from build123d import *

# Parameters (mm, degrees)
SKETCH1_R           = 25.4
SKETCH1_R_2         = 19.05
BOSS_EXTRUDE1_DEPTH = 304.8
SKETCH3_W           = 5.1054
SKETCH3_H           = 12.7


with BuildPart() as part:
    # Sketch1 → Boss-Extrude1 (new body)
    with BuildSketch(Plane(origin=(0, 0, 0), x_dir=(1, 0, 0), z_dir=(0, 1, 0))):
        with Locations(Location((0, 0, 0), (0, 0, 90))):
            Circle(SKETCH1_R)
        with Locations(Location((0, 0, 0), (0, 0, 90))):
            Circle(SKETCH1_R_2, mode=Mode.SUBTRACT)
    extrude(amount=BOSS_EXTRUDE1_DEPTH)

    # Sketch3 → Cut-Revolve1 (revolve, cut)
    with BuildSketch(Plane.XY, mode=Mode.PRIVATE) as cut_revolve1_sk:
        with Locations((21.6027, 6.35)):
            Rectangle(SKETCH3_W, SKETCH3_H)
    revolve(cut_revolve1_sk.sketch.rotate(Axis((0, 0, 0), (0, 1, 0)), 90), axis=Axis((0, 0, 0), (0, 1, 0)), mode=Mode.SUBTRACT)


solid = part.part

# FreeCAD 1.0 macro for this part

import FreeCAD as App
import Part
import Sketcher

V = App.Vector
Q = App.Units.Quantity


def add_polygon(sketch, points):
    """Adds a closed chain of lines whose ends are joined by coincident constraints."""
    first, n = sketch.GeometryCount, len(points)
    for a, b in zip(points, points[1:] + points[:1]):
        sketch.addGeometry(Part.LineSegment(App.Vector(*a, 0), App.Vector(*b, 0)), False)
    for i in range(n):
        sketch.addConstraint(Sketcher.Constraint("Coincident", first + i, 2, first + (i + 1) % n, 1))

doc = App.newDocument("Part")
body = doc.addObject("PartDesign::Body", "Body")

# Sketch on XZ plane
sketch1 = body.newObject("Sketcher::SketchObject", "Sketch")
sketch1.AttachmentSupport = (doc.getObject("XZ_Plane"), [""])
sketch1.MapMode = "FlatFace"
sketch1.addGeometry([
    Part.Circle(V(0, 0, 0), V(0, 0, 1), 25),
    Part.Circle(V(0, 0, 0), V(0, 0, 1), 19),
], False)
sketch1.addConstraint([
    Sketcher.Constraint("Coincident", 0, 3, -1, 1),
    Sketcher.Constraint("Coincident", 1, 3, -1, 1),
    Sketcher.Constraint("Diameter", 0, Q("2 in")),
    Sketcher.Constraint("Diameter", 1, Q("1.5 in")),
])
pad1 = body.newObject("PartDesign::Pad", "Pad")
pad1.Profile = sketch1
pad1.Length = Q("12 in")
pad1.Reversed = True

# Sketch on XY plane
sketch2 = body.newObject("Sketcher::SketchObject", "Sketch001")
sketch2.AttachmentSupport = (doc.getObject("XY_Plane"), [""])
sketch2.MapMode = "FlatFace"
add_polygon(sketch2, [(19, 13), (19, 0), (24, 0), (24, 13)])  # lines 0-3
sketch2.addConstraint([
    Sketcher.Constraint("Vertical", 0),
    Sketcher.Constraint("Horizontal", 1),
    Sketcher.Constraint("Vertical", 2),
    Sketcher.Constraint("Horizontal", 3),
    Sketcher.Constraint("PointOnObject", 0, 2, -1),
    Sketcher.Constraint("DistanceY", 0, 2, 0, 1, Q("0.5 in")),
    Sketcher.Constraint("DistanceX", 1, 1, 1, 2, Q("0.201 in")),
    Sketcher.Constraint("DistanceX", -1, 1, 0, 2, Q("0.75 in")),
])
groove = body.newObject("PartDesign::Groove", "Groove")
groove.Profile = sketch2
groove.ReferenceAxis = (sketch2, ["V_Axis"])
groove.Angle = 360

doc.recompute()
